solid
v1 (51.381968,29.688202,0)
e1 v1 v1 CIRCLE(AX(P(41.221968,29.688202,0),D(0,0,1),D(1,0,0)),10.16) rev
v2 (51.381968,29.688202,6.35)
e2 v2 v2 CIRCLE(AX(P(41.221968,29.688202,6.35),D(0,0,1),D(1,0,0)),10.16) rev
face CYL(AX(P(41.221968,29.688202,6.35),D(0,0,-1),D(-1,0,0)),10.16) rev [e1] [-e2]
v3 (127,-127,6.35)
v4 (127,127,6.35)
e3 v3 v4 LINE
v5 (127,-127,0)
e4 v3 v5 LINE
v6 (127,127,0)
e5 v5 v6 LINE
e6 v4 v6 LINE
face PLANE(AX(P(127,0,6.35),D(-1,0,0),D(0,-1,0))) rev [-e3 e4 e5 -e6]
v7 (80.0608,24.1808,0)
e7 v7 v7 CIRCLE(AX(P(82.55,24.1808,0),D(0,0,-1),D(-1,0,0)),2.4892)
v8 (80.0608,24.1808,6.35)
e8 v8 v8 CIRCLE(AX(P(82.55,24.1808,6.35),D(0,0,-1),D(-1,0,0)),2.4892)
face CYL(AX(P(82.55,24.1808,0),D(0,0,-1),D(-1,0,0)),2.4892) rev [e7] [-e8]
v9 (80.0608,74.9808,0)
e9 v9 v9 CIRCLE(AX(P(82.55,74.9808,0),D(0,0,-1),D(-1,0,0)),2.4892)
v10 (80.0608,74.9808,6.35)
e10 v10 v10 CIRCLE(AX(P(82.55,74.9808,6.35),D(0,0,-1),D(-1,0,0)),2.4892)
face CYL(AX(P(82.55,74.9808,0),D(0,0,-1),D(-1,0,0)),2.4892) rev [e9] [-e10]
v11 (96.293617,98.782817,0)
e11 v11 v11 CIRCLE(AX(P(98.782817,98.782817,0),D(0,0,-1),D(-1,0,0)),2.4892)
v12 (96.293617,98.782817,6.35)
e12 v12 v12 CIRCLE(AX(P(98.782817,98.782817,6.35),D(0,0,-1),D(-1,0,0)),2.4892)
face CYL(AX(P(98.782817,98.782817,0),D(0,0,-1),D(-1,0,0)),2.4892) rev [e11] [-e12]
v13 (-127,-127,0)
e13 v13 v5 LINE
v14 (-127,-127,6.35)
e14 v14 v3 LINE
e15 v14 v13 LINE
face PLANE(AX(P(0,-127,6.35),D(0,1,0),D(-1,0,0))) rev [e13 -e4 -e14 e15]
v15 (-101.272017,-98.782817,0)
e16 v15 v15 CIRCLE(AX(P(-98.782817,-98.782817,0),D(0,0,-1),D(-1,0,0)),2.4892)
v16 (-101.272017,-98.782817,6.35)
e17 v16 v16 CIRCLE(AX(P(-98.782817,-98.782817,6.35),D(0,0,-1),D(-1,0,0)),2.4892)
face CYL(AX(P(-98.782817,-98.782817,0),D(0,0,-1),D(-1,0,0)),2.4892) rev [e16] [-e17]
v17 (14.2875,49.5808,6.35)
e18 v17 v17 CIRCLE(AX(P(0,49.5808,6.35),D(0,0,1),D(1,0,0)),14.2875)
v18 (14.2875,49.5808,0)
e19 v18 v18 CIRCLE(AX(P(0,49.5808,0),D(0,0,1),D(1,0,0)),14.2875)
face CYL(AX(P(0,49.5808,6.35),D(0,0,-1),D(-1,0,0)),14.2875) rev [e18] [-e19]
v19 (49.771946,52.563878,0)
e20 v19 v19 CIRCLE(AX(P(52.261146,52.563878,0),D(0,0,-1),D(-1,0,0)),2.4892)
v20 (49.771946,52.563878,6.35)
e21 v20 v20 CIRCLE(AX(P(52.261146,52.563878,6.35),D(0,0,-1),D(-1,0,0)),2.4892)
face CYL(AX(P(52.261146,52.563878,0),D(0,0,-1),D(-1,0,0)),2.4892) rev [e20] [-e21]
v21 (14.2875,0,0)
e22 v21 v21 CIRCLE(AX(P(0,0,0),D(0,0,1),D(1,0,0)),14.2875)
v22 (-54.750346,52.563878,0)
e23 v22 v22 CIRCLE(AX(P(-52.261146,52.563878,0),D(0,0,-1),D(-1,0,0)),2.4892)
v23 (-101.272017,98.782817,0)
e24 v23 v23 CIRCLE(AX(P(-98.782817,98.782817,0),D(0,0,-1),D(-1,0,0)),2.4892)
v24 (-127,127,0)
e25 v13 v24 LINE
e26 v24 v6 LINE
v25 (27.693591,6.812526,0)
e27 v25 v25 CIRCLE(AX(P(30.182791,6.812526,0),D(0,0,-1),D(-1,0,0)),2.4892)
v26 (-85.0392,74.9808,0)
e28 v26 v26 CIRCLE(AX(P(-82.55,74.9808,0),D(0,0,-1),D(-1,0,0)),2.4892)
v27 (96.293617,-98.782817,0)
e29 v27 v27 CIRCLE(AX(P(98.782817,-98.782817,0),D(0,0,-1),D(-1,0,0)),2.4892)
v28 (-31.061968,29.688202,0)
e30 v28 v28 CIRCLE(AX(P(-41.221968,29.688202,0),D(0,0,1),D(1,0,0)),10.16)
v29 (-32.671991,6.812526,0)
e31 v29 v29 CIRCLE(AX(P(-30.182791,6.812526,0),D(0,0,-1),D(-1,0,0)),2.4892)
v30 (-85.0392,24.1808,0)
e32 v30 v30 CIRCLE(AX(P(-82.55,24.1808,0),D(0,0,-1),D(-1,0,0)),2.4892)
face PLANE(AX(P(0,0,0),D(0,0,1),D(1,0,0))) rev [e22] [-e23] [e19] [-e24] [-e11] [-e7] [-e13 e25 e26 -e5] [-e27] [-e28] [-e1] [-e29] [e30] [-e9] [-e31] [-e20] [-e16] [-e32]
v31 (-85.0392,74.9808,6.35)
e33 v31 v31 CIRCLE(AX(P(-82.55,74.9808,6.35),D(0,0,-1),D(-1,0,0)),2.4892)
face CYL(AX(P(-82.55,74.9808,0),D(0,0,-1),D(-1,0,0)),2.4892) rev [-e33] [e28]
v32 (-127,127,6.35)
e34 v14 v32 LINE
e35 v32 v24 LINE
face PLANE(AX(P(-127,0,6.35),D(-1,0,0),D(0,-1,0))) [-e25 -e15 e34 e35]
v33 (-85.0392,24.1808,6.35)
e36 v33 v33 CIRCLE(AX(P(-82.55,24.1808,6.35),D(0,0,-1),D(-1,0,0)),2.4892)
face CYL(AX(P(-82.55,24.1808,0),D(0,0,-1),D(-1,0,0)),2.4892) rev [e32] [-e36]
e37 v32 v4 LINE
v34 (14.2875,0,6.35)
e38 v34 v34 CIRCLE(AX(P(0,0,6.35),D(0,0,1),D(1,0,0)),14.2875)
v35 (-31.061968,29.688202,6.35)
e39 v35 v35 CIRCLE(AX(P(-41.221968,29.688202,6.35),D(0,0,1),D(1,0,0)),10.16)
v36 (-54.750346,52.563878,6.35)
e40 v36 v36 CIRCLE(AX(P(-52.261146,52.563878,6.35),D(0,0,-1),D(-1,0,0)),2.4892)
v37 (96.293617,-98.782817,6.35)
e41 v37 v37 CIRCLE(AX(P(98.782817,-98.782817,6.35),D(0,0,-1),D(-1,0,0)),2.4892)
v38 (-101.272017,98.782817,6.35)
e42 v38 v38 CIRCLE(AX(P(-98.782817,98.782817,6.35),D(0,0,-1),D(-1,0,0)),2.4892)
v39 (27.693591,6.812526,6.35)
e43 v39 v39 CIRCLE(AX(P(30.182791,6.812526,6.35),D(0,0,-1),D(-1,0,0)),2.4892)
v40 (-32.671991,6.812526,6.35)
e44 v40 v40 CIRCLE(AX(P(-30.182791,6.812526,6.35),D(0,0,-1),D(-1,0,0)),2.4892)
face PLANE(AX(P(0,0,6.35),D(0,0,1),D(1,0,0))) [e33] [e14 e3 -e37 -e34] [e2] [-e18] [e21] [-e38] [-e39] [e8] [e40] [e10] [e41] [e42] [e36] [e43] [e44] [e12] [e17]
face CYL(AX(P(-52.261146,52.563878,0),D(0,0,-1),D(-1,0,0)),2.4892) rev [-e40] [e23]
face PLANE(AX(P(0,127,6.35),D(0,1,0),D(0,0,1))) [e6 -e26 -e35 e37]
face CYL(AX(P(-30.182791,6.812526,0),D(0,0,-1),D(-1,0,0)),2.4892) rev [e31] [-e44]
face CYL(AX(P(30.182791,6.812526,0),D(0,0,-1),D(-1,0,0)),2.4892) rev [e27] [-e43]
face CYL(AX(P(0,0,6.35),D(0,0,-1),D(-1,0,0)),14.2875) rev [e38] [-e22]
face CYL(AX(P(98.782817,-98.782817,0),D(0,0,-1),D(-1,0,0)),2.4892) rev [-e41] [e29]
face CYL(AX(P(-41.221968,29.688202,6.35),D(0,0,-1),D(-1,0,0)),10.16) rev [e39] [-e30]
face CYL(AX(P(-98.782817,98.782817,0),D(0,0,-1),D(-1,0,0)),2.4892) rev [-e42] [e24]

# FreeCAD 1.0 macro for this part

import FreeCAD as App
import Part
import Sketcher
Q = App.Units.Quantity


def add_polygon(sketch, points):
    """Adds a closed chain of lines whose ends are joined by coincident constraints."""
    first, n = sketch.GeometryCount, len(points)
    for a, b in zip(points, points[1:] + points[:1]):
        sketch.addGeometry(Part.LineSegment(App.Vector(*a, 0), App.Vector(*b, 0)), False)
    for i in range(n):
        sketch.addConstraint(Sketcher.Constraint("Coincident", first + i, 2, first + (i + 1) % n, 1))

doc = App.newDocument("Part")
params = doc.addObject("Spreadsheet::Sheet", "Params")
for row, (alias, value) in enumerate([
    ("sketch1_diameter", "0.8 in"),
    ("sketch1_width", "10 in"),
    ("sketch1_diameter2", "1.125 in"),
    ("pad1_length", "0.25 in"),
    ("sketch2_diameter", "0.196 in"),
    ("hole_diameter", "0.196 in"),
], start=1):
    params.set(f"A{row}", alias)
    params.set(f"B{row}", "=" + value)
    params.setAlias(f"B{row}", alias)

body = doc.addObject("PartDesign::Body", "Body")

# Sketch on XY plane
sketch1 = body.newObject("Sketcher::SketchObject", "Sketch")
sketch1.AttachmentSupport = (doc.getObject("XY_Plane"), [""])
sketch1.MapMode = "FlatFace"
add_polygon(sketch1, [(-127, 127), (-127, -127), (127, -127), (127, 127)])  # lines 0-3
sketch1.addGeometry(Part.Circle(App.Vector(0, 0, 0), App.Vector(0, 0, 1), 14), False)  # 4
sketch1.addGeometry(Part.Circle(App.Vector(-41, 30, 0), App.Vector(0, 0, 1), 10), False)  # 5
sketch1.addGeometry(Part.Circle(App.Vector(41, 30, 0), App.Vector(0, 0, 1), 10), False)  # 6
sketch1.addGeometry(Part.Circle(App.Vector(0, 50, 0), App.Vector(0, 0, 1), 14), False)  # 7
sketch1.addConstraint([
    Sketcher.Constraint("Vertical", 0),
    Sketcher.Constraint("Horizontal", 1),
    Sketcher.Constraint("Vertical", 2),
    Sketcher.Constraint("Horizontal", 3),
    Sketcher.Constraint("Coincident", 4, 3, -1, 1),
    Sketcher.Constraint("Equal", 5, 6),
    Sketcher.Constraint("Equal", 4, 7),
    Sketcher.Constraint("Symmetric", 0, 2, 2, 2, -1, 1),
    Sketcher.Constraint("Symmetric", 5, 3, 6, 3, -2),
    Sketcher.Constraint("PointOnObject", 7, 3, -2),
    Sketcher.Constraint("Equal", 3, 0),
    Sketcher.Constraint("Diameter", 5, Q("0.8 in")),
    Sketcher.Constraint("DistanceX", 1, 1, 1, 2, Q("10 in")),
    Sketcher.Constraint("Diameter", 4, Q("1.125 in")),
    Sketcher.Constraint("DistanceY", -1, 1, 7, 3, Q("1.952 in")),
    Sketcher.Constraint("DistanceY", -1, 1, 5, 3, 29.688202),
    Sketcher.Constraint("DistanceX", 5, 3, -1, 1, 41.221968),
])
sketch1.setExpression("Constraints[15]", "Params.sketch1_diameter")
sketch1.setExpression("Constraints[16]", "Params.sketch1_width")
sketch1.setExpression("Constraints[17]", "Params.sketch1_diameter2")
pad1 = body.newObject("PartDesign::Pad", "Pad")
pad1.Profile = sketch1
pad1.setExpression("Length", "Params.pad1_length")

# Sketch on XY plane
sketch2 = body.newObject("Sketcher::SketchObject", "Sketch001")
sketch2.AttachmentSupport = (doc.getObject("XY_Plane"), [""])
sketch2.MapMode = "FlatFace"
sketch2.addGeometry([
    Part.Circle(App.Vector(98.8, 98.8, 0), App.Vector(0, 0, 1), 2.5),  # 0
    Part.Circle(App.Vector(52.3, 52.6, 0), App.Vector(0, 0, 1), 2.5),  # 1
    Part.Circle(App.Vector(30.2, 6.8, 0), App.Vector(0, 0, 1), 2.5),  # 2
    Part.Circle(App.Vector(-30.2, 6.8, 0), App.Vector(0, 0, 1), 2.5),  # 3
    Part.Circle(App.Vector(-52.3, 52.6, 0), App.Vector(0, 0, 1), 2.5),  # 4
    Part.Circle(App.Vector(-98.8, 98.8, 0), App.Vector(0, 0, 1), 2.5),  # 5
    Part.Circle(App.Vector(-98.8, -98.8, 0), App.Vector(0, 0, 1), 2.5),  # 6
    Part.Circle(App.Vector(98.8, -98.8, 0), App.Vector(0, 0, 1), 2.5),  # 7
    Part.Circle(App.Vector(82.5, 75, 0), App.Vector(0, 0, 1), 2.5),  # 8
    Part.Circle(App.Vector(82.5, 24.2, 0), App.Vector(0, 0, 1), 2.5),  # 9
    Part.Circle(App.Vector(-82.5, 75, 0), App.Vector(0, 0, 1), 2.5),  # 10
    Part.Circle(App.Vector(-82.5, 24.2, 0), App.Vector(0, 0, 1), 2.5),  # 11
], False)
sketch2.addConstraint([
    Sketcher.Constraint("Equal", 0, 1),
    Sketcher.Constraint("Equal", 1, 2),
    Sketcher.Constraint("Equal", 2, 3),
    Sketcher.Constraint("Equal", 3, 4),
    Sketcher.Constraint("Equal", 4, 5),
    Sketcher.Constraint("Equal", 5, 6),
    Sketcher.Constraint("Equal", 6, 7),
    Sketcher.Constraint("Equal", 7, 8),
    Sketcher.Constraint("Equal", 8, 9),
    Sketcher.Constraint("Equal", 9, 10),
    Sketcher.Constraint("Equal", 10, 11),
    Sketcher.Constraint("Symmetric", 0, 3, 6, 3, -1, 1),
    Sketcher.Constraint("Symmetric", 5, 3, 7, 3, -1, 1),
    Sketcher.Constraint("Symmetric", 2, 3, 3, 3, -2),
    Sketcher.Constraint("Symmetric", 1, 3, 4, 3, -2),
    Sketcher.Constraint("Symmetric", 0, 3, 5, 3, -2),
    Sketcher.Constraint("Symmetric", 8, 3, 10, 3, -2),
    Sketcher.Constraint("Symmetric", 9, 3, 11, 3, -2),
    Sketcher.Constraint("Vertical", 8, 3, 9, 3),
    Sketcher.Constraint("Diameter", 0, Q("0.196 in")),
    Sketcher.Constraint("DistanceY", 9, 3, 8, 3, Q("2 in")),
    Sketcher.Constraint("DistanceX", -1, 1, 8, 3, Q("3.25 in")),
    Sketcher.Constraint("DistanceY", -1, 1, 8, 3, Q("2.952 in")),
    Sketcher.Constraint("DistanceX", -1, 1, 2, 3, 30.182791),
    Sketcher.Constraint("DistanceX", 1, 3, 0, 3, 46.521671),
    Sketcher.Constraint("DistanceY", 1, 3, 0, 3, 46.218939),
    Sketcher.Constraint("DistanceY", 2, 3, 0, 3, 91.970292),
    Sketcher.Constraint("DistanceX", 4, 3, 1, 3, 104.522292),
    Sketcher.Constraint("DistanceY", -1, 1, 0, 3, 98.782817),
])
sketch2.setExpression("Constraints[19]", "Params.sketch2_diameter")
doc.recompute()
hole = body.newObject("PartDesign::Hole", "Hole")
hole.Profile = sketch2
hole.ThreadType = "None"
hole.setExpression("Diameter", "Params.hole_diameter")
hole.DepthType = "ThroughAll"
hole.Reversed = True

doc.recompute()
